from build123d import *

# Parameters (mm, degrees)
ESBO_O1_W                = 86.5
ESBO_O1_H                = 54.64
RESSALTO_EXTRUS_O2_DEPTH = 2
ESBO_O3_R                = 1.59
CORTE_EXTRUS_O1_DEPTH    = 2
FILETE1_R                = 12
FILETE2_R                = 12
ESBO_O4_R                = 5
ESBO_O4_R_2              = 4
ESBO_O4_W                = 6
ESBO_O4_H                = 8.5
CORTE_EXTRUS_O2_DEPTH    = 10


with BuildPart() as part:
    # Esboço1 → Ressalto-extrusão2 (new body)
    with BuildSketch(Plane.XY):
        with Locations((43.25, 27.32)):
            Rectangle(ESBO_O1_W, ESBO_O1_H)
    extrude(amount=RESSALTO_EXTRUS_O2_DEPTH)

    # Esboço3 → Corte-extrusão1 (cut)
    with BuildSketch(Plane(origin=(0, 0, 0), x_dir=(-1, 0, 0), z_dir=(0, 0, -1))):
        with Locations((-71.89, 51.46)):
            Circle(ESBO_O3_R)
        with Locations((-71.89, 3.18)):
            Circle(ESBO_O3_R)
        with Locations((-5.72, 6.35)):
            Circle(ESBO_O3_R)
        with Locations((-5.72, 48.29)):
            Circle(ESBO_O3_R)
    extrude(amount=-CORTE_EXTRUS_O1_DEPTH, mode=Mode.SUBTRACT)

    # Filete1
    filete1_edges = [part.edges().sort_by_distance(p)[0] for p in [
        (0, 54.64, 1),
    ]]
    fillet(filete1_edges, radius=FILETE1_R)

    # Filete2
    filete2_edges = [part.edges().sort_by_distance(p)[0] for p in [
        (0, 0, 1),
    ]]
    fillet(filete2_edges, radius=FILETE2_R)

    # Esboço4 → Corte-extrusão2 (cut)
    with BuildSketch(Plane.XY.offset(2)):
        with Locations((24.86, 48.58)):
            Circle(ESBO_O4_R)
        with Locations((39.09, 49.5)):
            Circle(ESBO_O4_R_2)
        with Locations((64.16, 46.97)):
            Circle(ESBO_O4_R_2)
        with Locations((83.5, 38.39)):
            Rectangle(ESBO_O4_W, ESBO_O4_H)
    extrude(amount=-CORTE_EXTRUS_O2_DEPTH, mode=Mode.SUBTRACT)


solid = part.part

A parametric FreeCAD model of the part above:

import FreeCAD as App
import Part
import Sketcher
Q = App.Units.Quantity


def edges_at(feature, points):
    """Names of the edges that pass closest to the given points."""
    edges = feature.Shape.Edges
    near = lambda p: min(range(len(edges)), key=lambda i: edges[i].distToShape(Part.Vertex(*p))[0])
    return sorted({f"Edge{near(p) + 1}" for p in points})


def add_polygon(sketch, points):
    """Adds a closed chain of lines whose ends are joined by coincident constraints."""
    first, n = sketch.GeometryCount, len(points)
    for a, b in zip(points, points[1:] + points[:1]):
        sketch.addGeometry(Part.LineSegment(App.Vector(*a, 0), App.Vector(*b, 0)), False)
    for i in range(n):
        sketch.addConstraint(Sketcher.Constraint("Coincident", first + i, 2, first + (i + 1) % n, 1))

doc = App.newDocument("Part")
body = doc.addObject("PartDesign::Body", "Body")

sketch1 = body.newObject("Sketcher::SketchObject", "Sketch")
sketch1.AttachmentSupport = (doc.getObject("XY_Plane"), [""])
sketch1.MapMode = "FlatFace"
add_polygon(sketch1, [(0, 54.64), (0, 0), (86.5, 0), (86.5, 54.64)])
sketch1.addConstraint([
    Sketcher.Constraint("Vertical", 0),
    Sketcher.Constraint("Horizontal", 1),
    Sketcher.Constraint("Vertical", 2),
    Sketcher.Constraint("Horizontal", 3),
    Sketcher.Constraint("Coincident", 0, 2, -1, 1),
    Sketcher.Constraint("DistanceX", 1, 1, 1, 2, Q("86.5 mm")),
    Sketcher.Constraint("DistanceY", 0, 2, 0, 1, Q("54.64 mm")),
])
pad1 = body.newObject("PartDesign::Pad", "Pad")
pad1.Profile = sketch1
pad1.Length = 2

sketch2 = body.newObject("Sketcher::SketchObject", "Sketch001")
sketch2.AttachmentSupport = (doc.getObject("XY_Plane"), [""])
sketch2.MapMode = "FlatFace"
sketch2.addGeometry([
    Part.Circle(App.Vector(71.89, 51.46, 0), App.Vector(0, 0, 1), 1.59),
    Part.Circle(App.Vector(71.89, 3.18, 0), App.Vector(0, 0, 1), 1.59),
    Part.Circle(App.Vector(5.72, 6.35, 0), App.Vector(0, 0, 1), 1.59),
    Part.Circle(App.Vector(5.72, 48.29, 0), App.Vector(0, 0, 1), 1.59),
], False)
sketch2.addConstraint([
    Sketcher.Constraint("Equal", 0, 1),
    Sketcher.Constraint("Equal", 1, 2),
    Sketcher.Constraint("Equal", 2, 3),
    Sketcher.Constraint("Vertical", 0, 3, 1, 3),
    Sketcher.Constraint("Vertical", 2, 3, 3, 3),
    Sketcher.Constraint("Diameter", 0, Q("3.18 mm")),
    Sketcher.Constraint("DistanceX", -1, 1, 0, 3, Q("71.89 mm")),
    Sketcher.Constraint("DistanceY", -1, 1, 0, 3, Q("51.46 mm")),
    Sketcher.Constraint("DistanceY", -1, 1, 1, 3, Q("3.18 mm")),
    Sketcher.Constraint("DistanceX", -1, 1, 2, 3, Q("5.72 mm")),
    Sketcher.Constraint("DistanceY", -1, 1, 2, 3, Q("6.35 mm")),
    Sketcher.Constraint("DistanceY", -1, 1, 3, 3, Q("48.29 mm")),
])
pocket1 = body.newObject("PartDesign::Pocket", "Pocket")
pocket1.Profile = sketch2
pocket1.Length = 2
pocket1.Reversed = True
doc.recompute()

fillet = body.newObject("PartDesign::Fillet", "Fillet")
fillet.Base = (pocket1, edges_at(pocket1, [(0, 54.64, 1)]))
fillet.Radius = 12
doc.recompute()

fillet2 = body.newObject("PartDesign::Fillet", "Fillet001")
fillet2.Base = (fillet, edges_at(fillet, [(0, 0, 1)]))
fillet2.Radius = 12

sketch3 = body.newObject("Sketcher::SketchObject", "Sketch002")
sketch3.AttachmentSupport = (doc.getObject("XY_Plane"), [""])
sketch3.MapMode = "FlatFace"
sketch3.AttachmentOffset = App.Placement(App.Vector(0, 0, 2), App.Rotation())
sketch3.addGeometry(Part.Circle(App.Vector(24.86, 48.58, 0), App.Vector(0, 0, 1), 5), False)
sketch3.addGeometry(Part.Circle(App.Vector(39.09, 49.5, 0), App.Vector(0, 0, 1), 4), False)
sketch3.addGeometry(Part.Circle(App.Vector(64.16, 46.97, 0), App.Vector(0, 0, 1), 4), False)
add_polygon(sketch3, [(80.5, 42.64), (80.5, 34.14), (86.5, 34.14), (86.5, 42.64)])
sketch3.addConstraint([
    Sketcher.Constraint("Vertical", 3),
    Sketcher.Constraint("Horizontal", 4),
    Sketcher.Constraint("Vertical", 5),
    Sketcher.Constraint("Horizontal", 6),
    Sketcher.Constraint("Equal", 1, 2),
    Sketcher.Constraint("Diameter", 0, Q("10 mm")),
    Sketcher.Constraint("Diameter", 1, Q("8 mm")),
    Sketcher.Constraint("DistanceX", 4, 1, 4, 2, Q("6 mm")),
    Sketcher.Constraint("DistanceY", 3, 2, 3, 1, Q("8.5 mm")),
    Sketcher.Constraint("DistanceY", -1, 1, 1, 3, Q("49.5 mm")),
    Sketcher.Constraint("DistanceX", -1, 1, 3, 2, Q("80.5 mm")),
    Sketcher.Constraint("DistanceX", 0, 3, 2, 3, Q("39.3 mm")),
    Sketcher.Constraint("DistanceX", -1, 1, 0, 3, Q("24.86 mm")),
    Sketcher.Constraint("DistanceY", -1, 1, 0, 3, Q("48.58 mm")),
    Sketcher.Constraint("DistanceX", -1, 1, 1, 3, Q("39.09 mm")),
    Sketcher.Constraint("DistanceY", -1, 1, 2, 3, Q("46.97 mm")),
    Sketcher.Constraint("DistanceY", -1, 1, 3, 2, Q("34.14 mm")),
])
pocket2 = body.newObject("PartDesign::Pocket", "Pocket001")
pocket2.Profile = sketch3
pocket2.Length = 10

doc.recompute()
